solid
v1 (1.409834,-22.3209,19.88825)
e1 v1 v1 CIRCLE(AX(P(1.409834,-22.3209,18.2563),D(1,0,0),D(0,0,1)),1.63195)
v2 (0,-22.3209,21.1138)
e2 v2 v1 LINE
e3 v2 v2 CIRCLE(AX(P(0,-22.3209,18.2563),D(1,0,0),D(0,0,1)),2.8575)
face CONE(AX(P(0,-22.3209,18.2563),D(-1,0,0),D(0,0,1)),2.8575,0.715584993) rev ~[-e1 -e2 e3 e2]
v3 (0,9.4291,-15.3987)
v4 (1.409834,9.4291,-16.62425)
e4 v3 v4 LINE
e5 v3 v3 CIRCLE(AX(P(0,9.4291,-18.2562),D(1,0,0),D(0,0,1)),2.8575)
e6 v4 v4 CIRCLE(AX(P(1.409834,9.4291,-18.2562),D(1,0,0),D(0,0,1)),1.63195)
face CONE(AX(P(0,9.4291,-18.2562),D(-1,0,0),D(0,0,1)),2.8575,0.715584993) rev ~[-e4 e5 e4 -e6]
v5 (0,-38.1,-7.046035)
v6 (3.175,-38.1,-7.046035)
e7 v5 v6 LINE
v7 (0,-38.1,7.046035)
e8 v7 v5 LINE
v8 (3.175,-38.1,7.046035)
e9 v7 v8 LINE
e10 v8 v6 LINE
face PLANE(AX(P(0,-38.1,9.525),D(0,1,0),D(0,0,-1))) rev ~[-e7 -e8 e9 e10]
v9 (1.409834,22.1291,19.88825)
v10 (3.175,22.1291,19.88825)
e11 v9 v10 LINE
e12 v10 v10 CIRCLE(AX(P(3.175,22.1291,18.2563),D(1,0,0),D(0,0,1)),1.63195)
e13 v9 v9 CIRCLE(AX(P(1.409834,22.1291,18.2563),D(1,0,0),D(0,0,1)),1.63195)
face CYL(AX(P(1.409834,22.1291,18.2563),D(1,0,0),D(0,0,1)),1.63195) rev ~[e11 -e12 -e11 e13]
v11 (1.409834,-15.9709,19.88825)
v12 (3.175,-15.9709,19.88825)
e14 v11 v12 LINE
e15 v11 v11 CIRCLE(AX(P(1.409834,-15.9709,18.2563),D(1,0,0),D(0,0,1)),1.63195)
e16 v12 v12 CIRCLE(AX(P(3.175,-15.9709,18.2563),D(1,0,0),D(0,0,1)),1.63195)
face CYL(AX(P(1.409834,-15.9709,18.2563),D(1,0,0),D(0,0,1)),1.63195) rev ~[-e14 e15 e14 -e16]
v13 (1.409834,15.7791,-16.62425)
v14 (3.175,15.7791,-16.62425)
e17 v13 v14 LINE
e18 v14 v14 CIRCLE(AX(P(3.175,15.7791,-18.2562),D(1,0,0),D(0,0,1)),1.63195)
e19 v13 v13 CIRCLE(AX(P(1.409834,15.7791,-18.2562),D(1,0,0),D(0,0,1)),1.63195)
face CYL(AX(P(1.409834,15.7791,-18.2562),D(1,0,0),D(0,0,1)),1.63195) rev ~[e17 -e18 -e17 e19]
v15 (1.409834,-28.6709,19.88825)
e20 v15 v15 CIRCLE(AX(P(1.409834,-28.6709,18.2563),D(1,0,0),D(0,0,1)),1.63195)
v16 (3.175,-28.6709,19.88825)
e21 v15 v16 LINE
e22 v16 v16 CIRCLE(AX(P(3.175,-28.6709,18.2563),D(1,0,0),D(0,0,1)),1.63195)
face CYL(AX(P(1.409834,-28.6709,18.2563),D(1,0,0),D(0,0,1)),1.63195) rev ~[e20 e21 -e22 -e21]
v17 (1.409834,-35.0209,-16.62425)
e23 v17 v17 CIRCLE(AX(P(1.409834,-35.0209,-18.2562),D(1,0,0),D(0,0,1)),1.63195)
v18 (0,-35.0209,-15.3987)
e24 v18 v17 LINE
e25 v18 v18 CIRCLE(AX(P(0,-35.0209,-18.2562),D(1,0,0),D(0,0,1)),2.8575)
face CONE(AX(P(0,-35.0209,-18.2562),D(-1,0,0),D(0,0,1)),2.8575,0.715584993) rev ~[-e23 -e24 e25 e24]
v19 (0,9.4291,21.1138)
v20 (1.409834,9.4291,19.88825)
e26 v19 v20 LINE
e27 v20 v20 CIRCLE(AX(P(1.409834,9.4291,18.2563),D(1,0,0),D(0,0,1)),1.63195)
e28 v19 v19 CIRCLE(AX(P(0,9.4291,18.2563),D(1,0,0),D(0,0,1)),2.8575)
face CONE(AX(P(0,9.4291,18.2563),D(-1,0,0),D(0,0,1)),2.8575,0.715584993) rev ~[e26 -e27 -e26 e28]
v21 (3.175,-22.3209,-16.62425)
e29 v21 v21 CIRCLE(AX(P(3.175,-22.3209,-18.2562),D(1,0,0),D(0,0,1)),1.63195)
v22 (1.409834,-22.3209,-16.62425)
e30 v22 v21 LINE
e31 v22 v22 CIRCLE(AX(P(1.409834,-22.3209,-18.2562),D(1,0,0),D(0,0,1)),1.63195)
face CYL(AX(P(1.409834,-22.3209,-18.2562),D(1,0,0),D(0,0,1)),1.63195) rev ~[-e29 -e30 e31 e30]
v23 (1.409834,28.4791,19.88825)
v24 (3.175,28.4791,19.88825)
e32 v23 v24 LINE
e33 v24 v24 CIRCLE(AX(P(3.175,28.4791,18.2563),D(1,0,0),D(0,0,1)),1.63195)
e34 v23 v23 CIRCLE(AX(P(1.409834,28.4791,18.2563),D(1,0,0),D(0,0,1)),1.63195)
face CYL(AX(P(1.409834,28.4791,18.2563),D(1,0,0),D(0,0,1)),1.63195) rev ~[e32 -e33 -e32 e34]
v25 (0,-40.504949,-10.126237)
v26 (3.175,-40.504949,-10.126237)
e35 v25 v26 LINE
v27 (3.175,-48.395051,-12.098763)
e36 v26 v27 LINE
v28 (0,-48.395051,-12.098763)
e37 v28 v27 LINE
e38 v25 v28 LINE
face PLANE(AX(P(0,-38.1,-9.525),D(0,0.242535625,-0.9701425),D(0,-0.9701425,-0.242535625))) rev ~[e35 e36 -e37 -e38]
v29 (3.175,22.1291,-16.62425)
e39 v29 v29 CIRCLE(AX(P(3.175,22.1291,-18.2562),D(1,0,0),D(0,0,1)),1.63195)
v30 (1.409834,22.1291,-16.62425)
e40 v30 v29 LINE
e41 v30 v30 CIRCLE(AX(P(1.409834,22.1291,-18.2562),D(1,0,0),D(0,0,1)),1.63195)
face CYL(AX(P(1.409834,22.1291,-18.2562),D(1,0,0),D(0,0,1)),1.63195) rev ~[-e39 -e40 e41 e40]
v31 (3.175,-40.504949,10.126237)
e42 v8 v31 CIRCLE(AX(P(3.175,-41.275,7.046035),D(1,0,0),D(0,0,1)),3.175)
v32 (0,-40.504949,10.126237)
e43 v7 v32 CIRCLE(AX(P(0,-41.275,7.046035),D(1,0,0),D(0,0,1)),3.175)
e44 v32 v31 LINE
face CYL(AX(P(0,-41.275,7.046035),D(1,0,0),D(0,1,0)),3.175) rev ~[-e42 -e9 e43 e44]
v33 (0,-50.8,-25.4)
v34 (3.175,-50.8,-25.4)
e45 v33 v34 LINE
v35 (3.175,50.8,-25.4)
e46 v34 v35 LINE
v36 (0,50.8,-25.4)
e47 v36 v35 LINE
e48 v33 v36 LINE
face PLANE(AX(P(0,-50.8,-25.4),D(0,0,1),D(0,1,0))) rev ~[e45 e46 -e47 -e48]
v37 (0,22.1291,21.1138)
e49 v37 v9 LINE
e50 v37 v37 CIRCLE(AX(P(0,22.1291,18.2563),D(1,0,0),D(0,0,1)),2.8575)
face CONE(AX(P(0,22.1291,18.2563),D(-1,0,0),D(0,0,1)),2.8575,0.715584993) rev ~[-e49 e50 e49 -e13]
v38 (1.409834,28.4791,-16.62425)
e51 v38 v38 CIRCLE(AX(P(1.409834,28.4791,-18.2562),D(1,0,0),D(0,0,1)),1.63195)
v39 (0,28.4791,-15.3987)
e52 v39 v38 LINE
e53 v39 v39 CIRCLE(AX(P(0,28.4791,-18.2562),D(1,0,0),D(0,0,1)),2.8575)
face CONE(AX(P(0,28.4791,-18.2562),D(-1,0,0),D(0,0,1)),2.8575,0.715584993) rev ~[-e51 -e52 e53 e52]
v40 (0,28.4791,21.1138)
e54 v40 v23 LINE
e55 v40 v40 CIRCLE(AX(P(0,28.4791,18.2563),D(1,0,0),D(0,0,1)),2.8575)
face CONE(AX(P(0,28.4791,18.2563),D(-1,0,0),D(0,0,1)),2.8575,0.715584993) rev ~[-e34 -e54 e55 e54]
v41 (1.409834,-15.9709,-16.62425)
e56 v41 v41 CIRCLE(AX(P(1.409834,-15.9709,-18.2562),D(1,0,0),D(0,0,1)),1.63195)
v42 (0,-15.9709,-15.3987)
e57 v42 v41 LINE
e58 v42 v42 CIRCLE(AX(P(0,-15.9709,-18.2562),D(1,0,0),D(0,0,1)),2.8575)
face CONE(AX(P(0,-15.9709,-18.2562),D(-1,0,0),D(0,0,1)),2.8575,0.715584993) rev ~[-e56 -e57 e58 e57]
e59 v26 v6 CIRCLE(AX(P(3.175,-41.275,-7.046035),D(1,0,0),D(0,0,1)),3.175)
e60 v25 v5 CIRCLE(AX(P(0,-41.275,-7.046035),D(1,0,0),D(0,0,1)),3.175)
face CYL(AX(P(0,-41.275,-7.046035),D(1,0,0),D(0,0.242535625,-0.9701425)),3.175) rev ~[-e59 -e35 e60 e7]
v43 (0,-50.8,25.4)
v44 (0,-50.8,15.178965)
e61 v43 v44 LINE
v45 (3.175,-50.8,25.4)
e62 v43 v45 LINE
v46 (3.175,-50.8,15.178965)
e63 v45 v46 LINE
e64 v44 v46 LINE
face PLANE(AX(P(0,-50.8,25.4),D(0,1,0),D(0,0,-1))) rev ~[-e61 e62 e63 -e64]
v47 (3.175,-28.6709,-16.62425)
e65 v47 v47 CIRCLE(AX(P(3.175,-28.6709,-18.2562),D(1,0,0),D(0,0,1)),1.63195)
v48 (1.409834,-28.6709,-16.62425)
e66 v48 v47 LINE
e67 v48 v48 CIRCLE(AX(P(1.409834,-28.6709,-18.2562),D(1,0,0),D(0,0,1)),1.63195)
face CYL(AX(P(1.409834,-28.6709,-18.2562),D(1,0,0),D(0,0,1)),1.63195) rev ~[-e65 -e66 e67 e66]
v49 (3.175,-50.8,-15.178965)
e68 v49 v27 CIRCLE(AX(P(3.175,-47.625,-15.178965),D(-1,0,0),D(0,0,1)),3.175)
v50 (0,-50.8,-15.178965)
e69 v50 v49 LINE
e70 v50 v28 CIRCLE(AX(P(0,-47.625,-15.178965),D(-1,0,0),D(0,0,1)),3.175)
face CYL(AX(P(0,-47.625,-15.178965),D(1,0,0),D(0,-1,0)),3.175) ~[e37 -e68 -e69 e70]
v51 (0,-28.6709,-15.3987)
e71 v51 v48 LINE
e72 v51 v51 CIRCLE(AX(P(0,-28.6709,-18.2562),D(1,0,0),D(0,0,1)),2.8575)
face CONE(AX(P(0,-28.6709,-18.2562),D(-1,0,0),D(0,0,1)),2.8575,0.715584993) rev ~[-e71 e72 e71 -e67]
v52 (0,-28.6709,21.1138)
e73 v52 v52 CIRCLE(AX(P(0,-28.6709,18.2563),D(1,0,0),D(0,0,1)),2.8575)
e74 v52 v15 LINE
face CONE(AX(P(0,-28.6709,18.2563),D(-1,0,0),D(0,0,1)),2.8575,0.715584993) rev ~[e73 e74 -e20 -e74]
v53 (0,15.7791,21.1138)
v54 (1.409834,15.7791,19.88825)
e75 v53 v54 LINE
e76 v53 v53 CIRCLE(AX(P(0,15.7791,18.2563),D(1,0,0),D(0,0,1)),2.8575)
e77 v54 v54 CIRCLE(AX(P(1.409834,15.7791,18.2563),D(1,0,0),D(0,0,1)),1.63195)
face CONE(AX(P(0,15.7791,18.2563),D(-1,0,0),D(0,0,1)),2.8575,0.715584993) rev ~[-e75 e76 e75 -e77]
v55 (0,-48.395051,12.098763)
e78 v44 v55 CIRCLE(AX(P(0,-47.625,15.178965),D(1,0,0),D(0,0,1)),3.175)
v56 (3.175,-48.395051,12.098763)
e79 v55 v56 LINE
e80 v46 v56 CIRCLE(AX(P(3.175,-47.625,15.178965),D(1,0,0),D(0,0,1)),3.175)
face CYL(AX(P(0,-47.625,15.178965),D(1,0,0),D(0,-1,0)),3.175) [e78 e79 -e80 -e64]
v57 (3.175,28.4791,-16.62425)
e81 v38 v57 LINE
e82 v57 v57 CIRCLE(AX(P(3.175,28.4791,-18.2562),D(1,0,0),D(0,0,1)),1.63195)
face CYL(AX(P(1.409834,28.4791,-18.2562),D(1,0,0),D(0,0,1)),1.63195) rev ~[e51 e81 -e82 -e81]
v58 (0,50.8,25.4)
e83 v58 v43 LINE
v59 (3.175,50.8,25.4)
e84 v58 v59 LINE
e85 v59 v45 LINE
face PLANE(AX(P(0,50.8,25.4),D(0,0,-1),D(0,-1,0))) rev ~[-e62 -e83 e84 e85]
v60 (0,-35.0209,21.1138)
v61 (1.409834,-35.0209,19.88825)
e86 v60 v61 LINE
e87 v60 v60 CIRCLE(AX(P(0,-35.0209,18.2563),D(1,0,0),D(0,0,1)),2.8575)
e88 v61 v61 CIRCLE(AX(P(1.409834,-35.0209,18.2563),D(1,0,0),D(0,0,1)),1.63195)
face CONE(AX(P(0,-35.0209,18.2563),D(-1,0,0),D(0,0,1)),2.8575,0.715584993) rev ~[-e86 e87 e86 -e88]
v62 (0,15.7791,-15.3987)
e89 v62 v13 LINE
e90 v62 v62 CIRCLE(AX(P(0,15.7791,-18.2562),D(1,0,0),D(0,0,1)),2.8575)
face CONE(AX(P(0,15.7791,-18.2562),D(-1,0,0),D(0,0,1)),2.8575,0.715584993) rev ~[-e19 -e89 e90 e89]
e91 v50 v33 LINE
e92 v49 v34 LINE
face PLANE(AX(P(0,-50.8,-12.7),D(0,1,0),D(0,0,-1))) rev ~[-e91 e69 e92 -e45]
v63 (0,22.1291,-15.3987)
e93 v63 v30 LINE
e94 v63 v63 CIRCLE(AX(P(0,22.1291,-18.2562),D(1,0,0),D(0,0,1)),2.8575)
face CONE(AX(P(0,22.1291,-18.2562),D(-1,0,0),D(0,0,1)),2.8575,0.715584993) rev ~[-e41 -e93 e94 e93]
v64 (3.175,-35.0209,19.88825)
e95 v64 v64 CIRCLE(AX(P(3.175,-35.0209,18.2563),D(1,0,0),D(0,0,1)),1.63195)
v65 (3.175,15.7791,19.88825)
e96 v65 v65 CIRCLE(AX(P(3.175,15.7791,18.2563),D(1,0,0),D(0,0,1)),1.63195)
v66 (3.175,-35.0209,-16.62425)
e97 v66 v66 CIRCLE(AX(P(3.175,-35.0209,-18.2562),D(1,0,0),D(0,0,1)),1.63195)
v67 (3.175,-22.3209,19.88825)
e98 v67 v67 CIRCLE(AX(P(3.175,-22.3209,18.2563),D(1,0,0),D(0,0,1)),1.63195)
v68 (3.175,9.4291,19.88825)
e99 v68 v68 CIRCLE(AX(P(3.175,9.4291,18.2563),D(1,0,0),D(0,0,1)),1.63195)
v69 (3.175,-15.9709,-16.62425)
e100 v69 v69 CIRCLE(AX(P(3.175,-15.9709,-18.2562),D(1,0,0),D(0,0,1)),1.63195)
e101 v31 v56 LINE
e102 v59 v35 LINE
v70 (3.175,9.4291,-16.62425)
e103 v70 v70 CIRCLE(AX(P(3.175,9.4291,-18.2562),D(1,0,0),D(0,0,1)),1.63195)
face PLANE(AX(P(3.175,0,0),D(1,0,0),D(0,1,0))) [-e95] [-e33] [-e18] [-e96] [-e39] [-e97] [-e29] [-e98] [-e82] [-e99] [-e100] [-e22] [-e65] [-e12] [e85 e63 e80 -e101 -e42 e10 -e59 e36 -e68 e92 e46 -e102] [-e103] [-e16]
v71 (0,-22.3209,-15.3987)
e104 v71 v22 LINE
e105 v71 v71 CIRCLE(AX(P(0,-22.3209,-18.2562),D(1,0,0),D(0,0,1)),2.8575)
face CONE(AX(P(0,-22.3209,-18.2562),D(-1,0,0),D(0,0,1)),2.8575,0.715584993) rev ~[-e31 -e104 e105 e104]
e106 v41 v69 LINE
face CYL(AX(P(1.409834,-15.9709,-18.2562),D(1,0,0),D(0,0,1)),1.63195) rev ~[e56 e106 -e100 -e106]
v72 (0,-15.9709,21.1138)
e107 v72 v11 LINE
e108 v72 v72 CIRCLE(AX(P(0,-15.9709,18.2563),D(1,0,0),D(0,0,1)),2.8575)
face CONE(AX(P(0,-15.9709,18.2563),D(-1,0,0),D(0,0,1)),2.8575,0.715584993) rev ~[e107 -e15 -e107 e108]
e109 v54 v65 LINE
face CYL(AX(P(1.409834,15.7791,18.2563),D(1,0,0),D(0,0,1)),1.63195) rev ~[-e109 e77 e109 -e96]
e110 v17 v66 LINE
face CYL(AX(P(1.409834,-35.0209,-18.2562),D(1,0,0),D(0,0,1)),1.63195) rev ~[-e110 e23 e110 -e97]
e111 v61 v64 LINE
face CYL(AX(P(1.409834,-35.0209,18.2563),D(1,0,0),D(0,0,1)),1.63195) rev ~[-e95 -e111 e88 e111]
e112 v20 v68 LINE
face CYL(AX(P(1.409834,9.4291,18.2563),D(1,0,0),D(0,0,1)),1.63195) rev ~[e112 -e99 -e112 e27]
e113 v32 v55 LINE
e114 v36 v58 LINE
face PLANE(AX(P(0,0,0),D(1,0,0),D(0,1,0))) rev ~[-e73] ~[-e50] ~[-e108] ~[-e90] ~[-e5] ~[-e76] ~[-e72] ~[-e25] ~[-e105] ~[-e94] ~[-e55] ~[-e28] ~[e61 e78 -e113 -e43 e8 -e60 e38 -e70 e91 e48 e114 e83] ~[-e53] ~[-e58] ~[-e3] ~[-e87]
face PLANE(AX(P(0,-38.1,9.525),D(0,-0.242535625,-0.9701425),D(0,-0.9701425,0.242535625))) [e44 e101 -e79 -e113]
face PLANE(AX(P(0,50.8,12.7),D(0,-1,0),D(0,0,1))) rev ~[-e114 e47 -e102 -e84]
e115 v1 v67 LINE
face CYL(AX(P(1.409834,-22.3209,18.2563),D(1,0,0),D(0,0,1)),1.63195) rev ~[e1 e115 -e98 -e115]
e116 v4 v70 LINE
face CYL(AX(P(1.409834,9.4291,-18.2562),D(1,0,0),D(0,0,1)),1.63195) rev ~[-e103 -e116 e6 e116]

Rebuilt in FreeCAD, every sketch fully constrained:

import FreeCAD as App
import Part
import Sketcher

V = App.Vector
Q = App.Units.Quantity


def edges_at(feature, points):
    """Names of the edges that pass closest to the given points."""
    edges = feature.Shape.Edges
    near = lambda p: min(range(len(edges)), key=lambda i: edges[i].distToShape(Part.Vertex(*p))[0])
    return sorted({f"Edge{near(p) + 1}" for p in points})

doc = App.newDocument("Part")
body = doc.addObject("PartDesign::Body", "Body")

# Sketch on YZ plane
sketch1 = doc.addObject("Sketcher::SketchObject", "Sketch")
body.addObject(sketch1)
sketch1.AttachmentSupport = (doc.YZ_Plane, [""])
sketch1.MapMode = "FlatFace"
sketch1.addGeometry([
    Part.LineSegment(V(51, 25, 0), V(-51, 25, 0)),  # 0
    Part.LineSegment(V(-51, 25, 0), V(-51, 13, 0)),  # 1
    Part.LineSegment(V(-51, 13, 0), V(-38, 10, 0)),  # 2
    Part.LineSegment(V(-38, 10, 0), V(-38, -10, 0)),  # 3
    Part.LineSegment(V(-38, -10, 0), V(-51, -13, 0)),  # 4
    Part.LineSegment(V(-51, -13, 0), V(-51, -25, 0)),  # 5
    Part.LineSegment(V(-51, -25, 0), V(51, -25, 0)),  # 6
    Part.LineSegment(V(51, -25, 0), V(51, 25, 0)),  # 7
], False)
sketch1.addConstraint([
    Sketcher.Constraint("Coincident", 0, 2, 1, 1),
    Sketcher.Constraint("Coincident", 1, 2, 2, 1),
    Sketcher.Constraint("Coincident", 2, 2, 3, 1),
    Sketcher.Constraint("Coincident", 3, 2, 4, 1),
    Sketcher.Constraint("Coincident", 4, 2, 5, 1),
    Sketcher.Constraint("Coincident", 5, 2, 6, 1),
    Sketcher.Constraint("Coincident", 6, 2, 7, 1),
    Sketcher.Constraint("Coincident", 7, 2, 0, 1),
    Sketcher.Constraint("Horizontal", 0),
    Sketcher.Constraint("Vertical", 1),
    Sketcher.Constraint("Vertical", 3),
    Sketcher.Constraint("Vertical", 5),
    Sketcher.Constraint("Horizontal", 6),
    Sketcher.Constraint("Vertical", 7),
    Sketcher.Constraint("Symmetric", 0, 2, 6, 2, -1, 1),
    Sketcher.Constraint("Symmetric", 1, 2, 4, 2, -1),
    Sketcher.Constraint("Equal", 2, 4),
    Sketcher.Constraint("DistanceX", 0, 2, 0, 1, Q("4 in")),
    Sketcher.Constraint("DistanceY", 7, 1, 7, 2, Q("2 in")),
    Sketcher.Constraint("DistanceY", 1, 2, 1, 1, Q("0.5 in")),
    Sketcher.Constraint("DistanceY", 3, 2, 3, 1, Q("0.75 in")),
    Sketcher.Constraint("DistanceX", 1, 2, 2, 2, Q("0.5 in")),
])
pad1 = doc.addObject("PartDesign::Pad", "Pad")
body.addObject(pad1)
pad1.Profile = sketch1
pad1.Length = Q("0.125 in")
doc.recompute()

fillet = doc.addObject("PartDesign::Fillet", "Fillet")
body.addObject(fillet)
fillet.Base = (pad1, edges_at(pad1, [
    (1.587, -38.1, 9.525),
    (1.587, -50.8, 12.7),
    (1.587, -38.1, -9.525),
    (1.587, -50.8, -12.7),
]))
fillet.Radius = Q("0.125 in")

# Sketch on YZ plane
sketch2 = doc.addObject("Sketcher::SketchObject", "Sketch001")
body.addObject(sketch2)
sketch2.AttachmentSupport = (doc.YZ_Plane, [""])
sketch2.MapMode = "FlatFace"
sketch2.addGeometry([
    Part.Circle(V(-35, 18.3, 0), V(0, 0, 1), 1.6),  # 0
    Part.Circle(V(-28.7, 18.3, 0), V(0, 0, 1), 1.6),  # 1
    Part.Circle(V(-22.3, 18.3, 0), V(0, 0, 1), 1.6),  # 2
    Part.Circle(V(-16, 18.3, 0), V(0, 0, 1), 1.6),  # 3
    Part.Circle(V(9.4, 18.3, 0), V(0, 0, 1), 1.6),  # 4
    Part.Circle(V(15.8, 18.3, 0), V(0, 0, 1), 1.6),  # 5
    Part.Circle(V(22.1, 18.3, 0), V(0, 0, 1), 1.6),  # 6
    Part.Circle(V(28.5, 18.3, 0), V(0, 0, 1), 1.6),  # 7
    Part.Circle(V(28.5, -18.3, 0), V(0, 0, 1), 1.6),  # 8
    Part.Circle(V(22.1, -18.3, 0), V(0, 0, 1), 1.6),  # 9
    Part.Circle(V(15.8, -18.3, 0), V(0, 0, 1), 1.6),  # 10
    Part.Circle(V(9.4, -18.3, 0), V(0, 0, 1), 1.6),  # 11
    Part.Circle(V(-16, -18.3, 0), V(0, 0, 1), 1.6),  # 12
    Part.Circle(V(-22.3, -18.3, 0), V(0, 0, 1), 1.6),  # 13
    Part.Circle(V(-28.7, -18.3, 0), V(0, 0, 1), 1.6),  # 14
    Part.Circle(V(-35, -18.3, 0), V(0, 0, 1), 1.6),  # 15
], False)
sketch2.addConstraint([
    Sketcher.Constraint("Equal", 0, 1),
    Sketcher.Constraint("Equal", 1, 2),
    Sketcher.Constraint("Equal", 2, 3),
    Sketcher.Constraint("Equal", 3, 4),
    Sketcher.Constraint("Equal", 4, 5),
    Sketcher.Constraint("Equal", 5, 6),
    Sketcher.Constraint("Equal", 6, 7),
    Sketcher.Constraint("Equal", 7, 8),
    Sketcher.Constraint("Equal", 8, 9),
    Sketcher.Constraint("Equal", 9, 10),
    Sketcher.Constraint("Equal", 10, 11),
    Sketcher.Constraint("Equal", 11, 12),
    Sketcher.Constraint("Equal", 12, 13),
    Sketcher.Constraint("Equal", 13, 14),
    Sketcher.Constraint("Equal", 14, 15),
    Sketcher.Constraint("Symmetric", 7, 3, 8, 3, -1),
    Sketcher.Constraint("Symmetric", 6, 3, 9, 3, -1),
    Sketcher.Constraint("Symmetric", 5, 3, 10, 3, -1),
    Sketcher.Constraint("Symmetric", 4, 3, 11, 3, -1),
    Sketcher.Constraint("Symmetric", 3, 3, 12, 3, -1),
    Sketcher.Constraint("Symmetric", 2, 3, 13, 3, -1),
    Sketcher.Constraint("Symmetric", 1, 3, 14, 3, -1),
    Sketcher.Constraint("Symmetric", 0, 3, 15, 3, -1),
    Sketcher.Constraint("Horizontal", 0, 3, 1, 3),
    Sketcher.Constraint("Horizontal", 1, 3, 2, 3),
    Sketcher.Constraint("Horizontal", 2, 3, 3, 3),
    Sketcher.Constraint("Horizontal", 3, 3, 4, 3),
    Sketcher.Constraint("Horizontal", 4, 3, 5, 3),
    Sketcher.Constraint("Horizontal", 5, 3, 6, 3),
    Sketcher.Constraint("Horizontal", 6, 3, 7, 3),
    Sketcher.Constraint("DistanceX", 3, 3, 4, 3, Q("1 in")),
    Sketcher.Constraint("DistanceX", 0, 3, 5, 3, Q("2 in")),
    Sketcher.Constraint("DistanceX", 1, 3, 6, 3, Q("2 in")),
    Sketcher.Constraint("DistanceX", 2, 3, 7, 3, Q("2 in")),
    Sketcher.Constraint("Diameter", 0, Q("0.1285 in")),
    Sketcher.Constraint("DistanceX", 0, 3, 2, 3, Q("0.5 in")),
    Sketcher.Constraint("DistanceX", 1, 3, 3, 3, Q("0.5 in")),
    Sketcher.Constraint("DistanceX", 0, 3, 1, 3, Q("0.25 in")),
    Sketcher.Constraint("DistanceY", -1, 1, 0, 3, Q("0.718752 in")),
    Sketcher.Constraint("DistanceX", 0, 3, -1, 1, 35.021),
])
doc.recompute()
hole = doc.addObject("PartDesign::Hole", "Hole")
body.addObject(hole)
hole.Profile = sketch2
hole.ThreadType = "None"
hole.Diameter = Q("0.1285 in")
hole.DepthType = "ThroughAll"
hole.HoleCutType = "Countersink"
hole.HoleCutDiameter = Q("0.225 in")
hole.HoleCutCountersinkAngle = 82
hole.Reversed = True

doc.recompute()
